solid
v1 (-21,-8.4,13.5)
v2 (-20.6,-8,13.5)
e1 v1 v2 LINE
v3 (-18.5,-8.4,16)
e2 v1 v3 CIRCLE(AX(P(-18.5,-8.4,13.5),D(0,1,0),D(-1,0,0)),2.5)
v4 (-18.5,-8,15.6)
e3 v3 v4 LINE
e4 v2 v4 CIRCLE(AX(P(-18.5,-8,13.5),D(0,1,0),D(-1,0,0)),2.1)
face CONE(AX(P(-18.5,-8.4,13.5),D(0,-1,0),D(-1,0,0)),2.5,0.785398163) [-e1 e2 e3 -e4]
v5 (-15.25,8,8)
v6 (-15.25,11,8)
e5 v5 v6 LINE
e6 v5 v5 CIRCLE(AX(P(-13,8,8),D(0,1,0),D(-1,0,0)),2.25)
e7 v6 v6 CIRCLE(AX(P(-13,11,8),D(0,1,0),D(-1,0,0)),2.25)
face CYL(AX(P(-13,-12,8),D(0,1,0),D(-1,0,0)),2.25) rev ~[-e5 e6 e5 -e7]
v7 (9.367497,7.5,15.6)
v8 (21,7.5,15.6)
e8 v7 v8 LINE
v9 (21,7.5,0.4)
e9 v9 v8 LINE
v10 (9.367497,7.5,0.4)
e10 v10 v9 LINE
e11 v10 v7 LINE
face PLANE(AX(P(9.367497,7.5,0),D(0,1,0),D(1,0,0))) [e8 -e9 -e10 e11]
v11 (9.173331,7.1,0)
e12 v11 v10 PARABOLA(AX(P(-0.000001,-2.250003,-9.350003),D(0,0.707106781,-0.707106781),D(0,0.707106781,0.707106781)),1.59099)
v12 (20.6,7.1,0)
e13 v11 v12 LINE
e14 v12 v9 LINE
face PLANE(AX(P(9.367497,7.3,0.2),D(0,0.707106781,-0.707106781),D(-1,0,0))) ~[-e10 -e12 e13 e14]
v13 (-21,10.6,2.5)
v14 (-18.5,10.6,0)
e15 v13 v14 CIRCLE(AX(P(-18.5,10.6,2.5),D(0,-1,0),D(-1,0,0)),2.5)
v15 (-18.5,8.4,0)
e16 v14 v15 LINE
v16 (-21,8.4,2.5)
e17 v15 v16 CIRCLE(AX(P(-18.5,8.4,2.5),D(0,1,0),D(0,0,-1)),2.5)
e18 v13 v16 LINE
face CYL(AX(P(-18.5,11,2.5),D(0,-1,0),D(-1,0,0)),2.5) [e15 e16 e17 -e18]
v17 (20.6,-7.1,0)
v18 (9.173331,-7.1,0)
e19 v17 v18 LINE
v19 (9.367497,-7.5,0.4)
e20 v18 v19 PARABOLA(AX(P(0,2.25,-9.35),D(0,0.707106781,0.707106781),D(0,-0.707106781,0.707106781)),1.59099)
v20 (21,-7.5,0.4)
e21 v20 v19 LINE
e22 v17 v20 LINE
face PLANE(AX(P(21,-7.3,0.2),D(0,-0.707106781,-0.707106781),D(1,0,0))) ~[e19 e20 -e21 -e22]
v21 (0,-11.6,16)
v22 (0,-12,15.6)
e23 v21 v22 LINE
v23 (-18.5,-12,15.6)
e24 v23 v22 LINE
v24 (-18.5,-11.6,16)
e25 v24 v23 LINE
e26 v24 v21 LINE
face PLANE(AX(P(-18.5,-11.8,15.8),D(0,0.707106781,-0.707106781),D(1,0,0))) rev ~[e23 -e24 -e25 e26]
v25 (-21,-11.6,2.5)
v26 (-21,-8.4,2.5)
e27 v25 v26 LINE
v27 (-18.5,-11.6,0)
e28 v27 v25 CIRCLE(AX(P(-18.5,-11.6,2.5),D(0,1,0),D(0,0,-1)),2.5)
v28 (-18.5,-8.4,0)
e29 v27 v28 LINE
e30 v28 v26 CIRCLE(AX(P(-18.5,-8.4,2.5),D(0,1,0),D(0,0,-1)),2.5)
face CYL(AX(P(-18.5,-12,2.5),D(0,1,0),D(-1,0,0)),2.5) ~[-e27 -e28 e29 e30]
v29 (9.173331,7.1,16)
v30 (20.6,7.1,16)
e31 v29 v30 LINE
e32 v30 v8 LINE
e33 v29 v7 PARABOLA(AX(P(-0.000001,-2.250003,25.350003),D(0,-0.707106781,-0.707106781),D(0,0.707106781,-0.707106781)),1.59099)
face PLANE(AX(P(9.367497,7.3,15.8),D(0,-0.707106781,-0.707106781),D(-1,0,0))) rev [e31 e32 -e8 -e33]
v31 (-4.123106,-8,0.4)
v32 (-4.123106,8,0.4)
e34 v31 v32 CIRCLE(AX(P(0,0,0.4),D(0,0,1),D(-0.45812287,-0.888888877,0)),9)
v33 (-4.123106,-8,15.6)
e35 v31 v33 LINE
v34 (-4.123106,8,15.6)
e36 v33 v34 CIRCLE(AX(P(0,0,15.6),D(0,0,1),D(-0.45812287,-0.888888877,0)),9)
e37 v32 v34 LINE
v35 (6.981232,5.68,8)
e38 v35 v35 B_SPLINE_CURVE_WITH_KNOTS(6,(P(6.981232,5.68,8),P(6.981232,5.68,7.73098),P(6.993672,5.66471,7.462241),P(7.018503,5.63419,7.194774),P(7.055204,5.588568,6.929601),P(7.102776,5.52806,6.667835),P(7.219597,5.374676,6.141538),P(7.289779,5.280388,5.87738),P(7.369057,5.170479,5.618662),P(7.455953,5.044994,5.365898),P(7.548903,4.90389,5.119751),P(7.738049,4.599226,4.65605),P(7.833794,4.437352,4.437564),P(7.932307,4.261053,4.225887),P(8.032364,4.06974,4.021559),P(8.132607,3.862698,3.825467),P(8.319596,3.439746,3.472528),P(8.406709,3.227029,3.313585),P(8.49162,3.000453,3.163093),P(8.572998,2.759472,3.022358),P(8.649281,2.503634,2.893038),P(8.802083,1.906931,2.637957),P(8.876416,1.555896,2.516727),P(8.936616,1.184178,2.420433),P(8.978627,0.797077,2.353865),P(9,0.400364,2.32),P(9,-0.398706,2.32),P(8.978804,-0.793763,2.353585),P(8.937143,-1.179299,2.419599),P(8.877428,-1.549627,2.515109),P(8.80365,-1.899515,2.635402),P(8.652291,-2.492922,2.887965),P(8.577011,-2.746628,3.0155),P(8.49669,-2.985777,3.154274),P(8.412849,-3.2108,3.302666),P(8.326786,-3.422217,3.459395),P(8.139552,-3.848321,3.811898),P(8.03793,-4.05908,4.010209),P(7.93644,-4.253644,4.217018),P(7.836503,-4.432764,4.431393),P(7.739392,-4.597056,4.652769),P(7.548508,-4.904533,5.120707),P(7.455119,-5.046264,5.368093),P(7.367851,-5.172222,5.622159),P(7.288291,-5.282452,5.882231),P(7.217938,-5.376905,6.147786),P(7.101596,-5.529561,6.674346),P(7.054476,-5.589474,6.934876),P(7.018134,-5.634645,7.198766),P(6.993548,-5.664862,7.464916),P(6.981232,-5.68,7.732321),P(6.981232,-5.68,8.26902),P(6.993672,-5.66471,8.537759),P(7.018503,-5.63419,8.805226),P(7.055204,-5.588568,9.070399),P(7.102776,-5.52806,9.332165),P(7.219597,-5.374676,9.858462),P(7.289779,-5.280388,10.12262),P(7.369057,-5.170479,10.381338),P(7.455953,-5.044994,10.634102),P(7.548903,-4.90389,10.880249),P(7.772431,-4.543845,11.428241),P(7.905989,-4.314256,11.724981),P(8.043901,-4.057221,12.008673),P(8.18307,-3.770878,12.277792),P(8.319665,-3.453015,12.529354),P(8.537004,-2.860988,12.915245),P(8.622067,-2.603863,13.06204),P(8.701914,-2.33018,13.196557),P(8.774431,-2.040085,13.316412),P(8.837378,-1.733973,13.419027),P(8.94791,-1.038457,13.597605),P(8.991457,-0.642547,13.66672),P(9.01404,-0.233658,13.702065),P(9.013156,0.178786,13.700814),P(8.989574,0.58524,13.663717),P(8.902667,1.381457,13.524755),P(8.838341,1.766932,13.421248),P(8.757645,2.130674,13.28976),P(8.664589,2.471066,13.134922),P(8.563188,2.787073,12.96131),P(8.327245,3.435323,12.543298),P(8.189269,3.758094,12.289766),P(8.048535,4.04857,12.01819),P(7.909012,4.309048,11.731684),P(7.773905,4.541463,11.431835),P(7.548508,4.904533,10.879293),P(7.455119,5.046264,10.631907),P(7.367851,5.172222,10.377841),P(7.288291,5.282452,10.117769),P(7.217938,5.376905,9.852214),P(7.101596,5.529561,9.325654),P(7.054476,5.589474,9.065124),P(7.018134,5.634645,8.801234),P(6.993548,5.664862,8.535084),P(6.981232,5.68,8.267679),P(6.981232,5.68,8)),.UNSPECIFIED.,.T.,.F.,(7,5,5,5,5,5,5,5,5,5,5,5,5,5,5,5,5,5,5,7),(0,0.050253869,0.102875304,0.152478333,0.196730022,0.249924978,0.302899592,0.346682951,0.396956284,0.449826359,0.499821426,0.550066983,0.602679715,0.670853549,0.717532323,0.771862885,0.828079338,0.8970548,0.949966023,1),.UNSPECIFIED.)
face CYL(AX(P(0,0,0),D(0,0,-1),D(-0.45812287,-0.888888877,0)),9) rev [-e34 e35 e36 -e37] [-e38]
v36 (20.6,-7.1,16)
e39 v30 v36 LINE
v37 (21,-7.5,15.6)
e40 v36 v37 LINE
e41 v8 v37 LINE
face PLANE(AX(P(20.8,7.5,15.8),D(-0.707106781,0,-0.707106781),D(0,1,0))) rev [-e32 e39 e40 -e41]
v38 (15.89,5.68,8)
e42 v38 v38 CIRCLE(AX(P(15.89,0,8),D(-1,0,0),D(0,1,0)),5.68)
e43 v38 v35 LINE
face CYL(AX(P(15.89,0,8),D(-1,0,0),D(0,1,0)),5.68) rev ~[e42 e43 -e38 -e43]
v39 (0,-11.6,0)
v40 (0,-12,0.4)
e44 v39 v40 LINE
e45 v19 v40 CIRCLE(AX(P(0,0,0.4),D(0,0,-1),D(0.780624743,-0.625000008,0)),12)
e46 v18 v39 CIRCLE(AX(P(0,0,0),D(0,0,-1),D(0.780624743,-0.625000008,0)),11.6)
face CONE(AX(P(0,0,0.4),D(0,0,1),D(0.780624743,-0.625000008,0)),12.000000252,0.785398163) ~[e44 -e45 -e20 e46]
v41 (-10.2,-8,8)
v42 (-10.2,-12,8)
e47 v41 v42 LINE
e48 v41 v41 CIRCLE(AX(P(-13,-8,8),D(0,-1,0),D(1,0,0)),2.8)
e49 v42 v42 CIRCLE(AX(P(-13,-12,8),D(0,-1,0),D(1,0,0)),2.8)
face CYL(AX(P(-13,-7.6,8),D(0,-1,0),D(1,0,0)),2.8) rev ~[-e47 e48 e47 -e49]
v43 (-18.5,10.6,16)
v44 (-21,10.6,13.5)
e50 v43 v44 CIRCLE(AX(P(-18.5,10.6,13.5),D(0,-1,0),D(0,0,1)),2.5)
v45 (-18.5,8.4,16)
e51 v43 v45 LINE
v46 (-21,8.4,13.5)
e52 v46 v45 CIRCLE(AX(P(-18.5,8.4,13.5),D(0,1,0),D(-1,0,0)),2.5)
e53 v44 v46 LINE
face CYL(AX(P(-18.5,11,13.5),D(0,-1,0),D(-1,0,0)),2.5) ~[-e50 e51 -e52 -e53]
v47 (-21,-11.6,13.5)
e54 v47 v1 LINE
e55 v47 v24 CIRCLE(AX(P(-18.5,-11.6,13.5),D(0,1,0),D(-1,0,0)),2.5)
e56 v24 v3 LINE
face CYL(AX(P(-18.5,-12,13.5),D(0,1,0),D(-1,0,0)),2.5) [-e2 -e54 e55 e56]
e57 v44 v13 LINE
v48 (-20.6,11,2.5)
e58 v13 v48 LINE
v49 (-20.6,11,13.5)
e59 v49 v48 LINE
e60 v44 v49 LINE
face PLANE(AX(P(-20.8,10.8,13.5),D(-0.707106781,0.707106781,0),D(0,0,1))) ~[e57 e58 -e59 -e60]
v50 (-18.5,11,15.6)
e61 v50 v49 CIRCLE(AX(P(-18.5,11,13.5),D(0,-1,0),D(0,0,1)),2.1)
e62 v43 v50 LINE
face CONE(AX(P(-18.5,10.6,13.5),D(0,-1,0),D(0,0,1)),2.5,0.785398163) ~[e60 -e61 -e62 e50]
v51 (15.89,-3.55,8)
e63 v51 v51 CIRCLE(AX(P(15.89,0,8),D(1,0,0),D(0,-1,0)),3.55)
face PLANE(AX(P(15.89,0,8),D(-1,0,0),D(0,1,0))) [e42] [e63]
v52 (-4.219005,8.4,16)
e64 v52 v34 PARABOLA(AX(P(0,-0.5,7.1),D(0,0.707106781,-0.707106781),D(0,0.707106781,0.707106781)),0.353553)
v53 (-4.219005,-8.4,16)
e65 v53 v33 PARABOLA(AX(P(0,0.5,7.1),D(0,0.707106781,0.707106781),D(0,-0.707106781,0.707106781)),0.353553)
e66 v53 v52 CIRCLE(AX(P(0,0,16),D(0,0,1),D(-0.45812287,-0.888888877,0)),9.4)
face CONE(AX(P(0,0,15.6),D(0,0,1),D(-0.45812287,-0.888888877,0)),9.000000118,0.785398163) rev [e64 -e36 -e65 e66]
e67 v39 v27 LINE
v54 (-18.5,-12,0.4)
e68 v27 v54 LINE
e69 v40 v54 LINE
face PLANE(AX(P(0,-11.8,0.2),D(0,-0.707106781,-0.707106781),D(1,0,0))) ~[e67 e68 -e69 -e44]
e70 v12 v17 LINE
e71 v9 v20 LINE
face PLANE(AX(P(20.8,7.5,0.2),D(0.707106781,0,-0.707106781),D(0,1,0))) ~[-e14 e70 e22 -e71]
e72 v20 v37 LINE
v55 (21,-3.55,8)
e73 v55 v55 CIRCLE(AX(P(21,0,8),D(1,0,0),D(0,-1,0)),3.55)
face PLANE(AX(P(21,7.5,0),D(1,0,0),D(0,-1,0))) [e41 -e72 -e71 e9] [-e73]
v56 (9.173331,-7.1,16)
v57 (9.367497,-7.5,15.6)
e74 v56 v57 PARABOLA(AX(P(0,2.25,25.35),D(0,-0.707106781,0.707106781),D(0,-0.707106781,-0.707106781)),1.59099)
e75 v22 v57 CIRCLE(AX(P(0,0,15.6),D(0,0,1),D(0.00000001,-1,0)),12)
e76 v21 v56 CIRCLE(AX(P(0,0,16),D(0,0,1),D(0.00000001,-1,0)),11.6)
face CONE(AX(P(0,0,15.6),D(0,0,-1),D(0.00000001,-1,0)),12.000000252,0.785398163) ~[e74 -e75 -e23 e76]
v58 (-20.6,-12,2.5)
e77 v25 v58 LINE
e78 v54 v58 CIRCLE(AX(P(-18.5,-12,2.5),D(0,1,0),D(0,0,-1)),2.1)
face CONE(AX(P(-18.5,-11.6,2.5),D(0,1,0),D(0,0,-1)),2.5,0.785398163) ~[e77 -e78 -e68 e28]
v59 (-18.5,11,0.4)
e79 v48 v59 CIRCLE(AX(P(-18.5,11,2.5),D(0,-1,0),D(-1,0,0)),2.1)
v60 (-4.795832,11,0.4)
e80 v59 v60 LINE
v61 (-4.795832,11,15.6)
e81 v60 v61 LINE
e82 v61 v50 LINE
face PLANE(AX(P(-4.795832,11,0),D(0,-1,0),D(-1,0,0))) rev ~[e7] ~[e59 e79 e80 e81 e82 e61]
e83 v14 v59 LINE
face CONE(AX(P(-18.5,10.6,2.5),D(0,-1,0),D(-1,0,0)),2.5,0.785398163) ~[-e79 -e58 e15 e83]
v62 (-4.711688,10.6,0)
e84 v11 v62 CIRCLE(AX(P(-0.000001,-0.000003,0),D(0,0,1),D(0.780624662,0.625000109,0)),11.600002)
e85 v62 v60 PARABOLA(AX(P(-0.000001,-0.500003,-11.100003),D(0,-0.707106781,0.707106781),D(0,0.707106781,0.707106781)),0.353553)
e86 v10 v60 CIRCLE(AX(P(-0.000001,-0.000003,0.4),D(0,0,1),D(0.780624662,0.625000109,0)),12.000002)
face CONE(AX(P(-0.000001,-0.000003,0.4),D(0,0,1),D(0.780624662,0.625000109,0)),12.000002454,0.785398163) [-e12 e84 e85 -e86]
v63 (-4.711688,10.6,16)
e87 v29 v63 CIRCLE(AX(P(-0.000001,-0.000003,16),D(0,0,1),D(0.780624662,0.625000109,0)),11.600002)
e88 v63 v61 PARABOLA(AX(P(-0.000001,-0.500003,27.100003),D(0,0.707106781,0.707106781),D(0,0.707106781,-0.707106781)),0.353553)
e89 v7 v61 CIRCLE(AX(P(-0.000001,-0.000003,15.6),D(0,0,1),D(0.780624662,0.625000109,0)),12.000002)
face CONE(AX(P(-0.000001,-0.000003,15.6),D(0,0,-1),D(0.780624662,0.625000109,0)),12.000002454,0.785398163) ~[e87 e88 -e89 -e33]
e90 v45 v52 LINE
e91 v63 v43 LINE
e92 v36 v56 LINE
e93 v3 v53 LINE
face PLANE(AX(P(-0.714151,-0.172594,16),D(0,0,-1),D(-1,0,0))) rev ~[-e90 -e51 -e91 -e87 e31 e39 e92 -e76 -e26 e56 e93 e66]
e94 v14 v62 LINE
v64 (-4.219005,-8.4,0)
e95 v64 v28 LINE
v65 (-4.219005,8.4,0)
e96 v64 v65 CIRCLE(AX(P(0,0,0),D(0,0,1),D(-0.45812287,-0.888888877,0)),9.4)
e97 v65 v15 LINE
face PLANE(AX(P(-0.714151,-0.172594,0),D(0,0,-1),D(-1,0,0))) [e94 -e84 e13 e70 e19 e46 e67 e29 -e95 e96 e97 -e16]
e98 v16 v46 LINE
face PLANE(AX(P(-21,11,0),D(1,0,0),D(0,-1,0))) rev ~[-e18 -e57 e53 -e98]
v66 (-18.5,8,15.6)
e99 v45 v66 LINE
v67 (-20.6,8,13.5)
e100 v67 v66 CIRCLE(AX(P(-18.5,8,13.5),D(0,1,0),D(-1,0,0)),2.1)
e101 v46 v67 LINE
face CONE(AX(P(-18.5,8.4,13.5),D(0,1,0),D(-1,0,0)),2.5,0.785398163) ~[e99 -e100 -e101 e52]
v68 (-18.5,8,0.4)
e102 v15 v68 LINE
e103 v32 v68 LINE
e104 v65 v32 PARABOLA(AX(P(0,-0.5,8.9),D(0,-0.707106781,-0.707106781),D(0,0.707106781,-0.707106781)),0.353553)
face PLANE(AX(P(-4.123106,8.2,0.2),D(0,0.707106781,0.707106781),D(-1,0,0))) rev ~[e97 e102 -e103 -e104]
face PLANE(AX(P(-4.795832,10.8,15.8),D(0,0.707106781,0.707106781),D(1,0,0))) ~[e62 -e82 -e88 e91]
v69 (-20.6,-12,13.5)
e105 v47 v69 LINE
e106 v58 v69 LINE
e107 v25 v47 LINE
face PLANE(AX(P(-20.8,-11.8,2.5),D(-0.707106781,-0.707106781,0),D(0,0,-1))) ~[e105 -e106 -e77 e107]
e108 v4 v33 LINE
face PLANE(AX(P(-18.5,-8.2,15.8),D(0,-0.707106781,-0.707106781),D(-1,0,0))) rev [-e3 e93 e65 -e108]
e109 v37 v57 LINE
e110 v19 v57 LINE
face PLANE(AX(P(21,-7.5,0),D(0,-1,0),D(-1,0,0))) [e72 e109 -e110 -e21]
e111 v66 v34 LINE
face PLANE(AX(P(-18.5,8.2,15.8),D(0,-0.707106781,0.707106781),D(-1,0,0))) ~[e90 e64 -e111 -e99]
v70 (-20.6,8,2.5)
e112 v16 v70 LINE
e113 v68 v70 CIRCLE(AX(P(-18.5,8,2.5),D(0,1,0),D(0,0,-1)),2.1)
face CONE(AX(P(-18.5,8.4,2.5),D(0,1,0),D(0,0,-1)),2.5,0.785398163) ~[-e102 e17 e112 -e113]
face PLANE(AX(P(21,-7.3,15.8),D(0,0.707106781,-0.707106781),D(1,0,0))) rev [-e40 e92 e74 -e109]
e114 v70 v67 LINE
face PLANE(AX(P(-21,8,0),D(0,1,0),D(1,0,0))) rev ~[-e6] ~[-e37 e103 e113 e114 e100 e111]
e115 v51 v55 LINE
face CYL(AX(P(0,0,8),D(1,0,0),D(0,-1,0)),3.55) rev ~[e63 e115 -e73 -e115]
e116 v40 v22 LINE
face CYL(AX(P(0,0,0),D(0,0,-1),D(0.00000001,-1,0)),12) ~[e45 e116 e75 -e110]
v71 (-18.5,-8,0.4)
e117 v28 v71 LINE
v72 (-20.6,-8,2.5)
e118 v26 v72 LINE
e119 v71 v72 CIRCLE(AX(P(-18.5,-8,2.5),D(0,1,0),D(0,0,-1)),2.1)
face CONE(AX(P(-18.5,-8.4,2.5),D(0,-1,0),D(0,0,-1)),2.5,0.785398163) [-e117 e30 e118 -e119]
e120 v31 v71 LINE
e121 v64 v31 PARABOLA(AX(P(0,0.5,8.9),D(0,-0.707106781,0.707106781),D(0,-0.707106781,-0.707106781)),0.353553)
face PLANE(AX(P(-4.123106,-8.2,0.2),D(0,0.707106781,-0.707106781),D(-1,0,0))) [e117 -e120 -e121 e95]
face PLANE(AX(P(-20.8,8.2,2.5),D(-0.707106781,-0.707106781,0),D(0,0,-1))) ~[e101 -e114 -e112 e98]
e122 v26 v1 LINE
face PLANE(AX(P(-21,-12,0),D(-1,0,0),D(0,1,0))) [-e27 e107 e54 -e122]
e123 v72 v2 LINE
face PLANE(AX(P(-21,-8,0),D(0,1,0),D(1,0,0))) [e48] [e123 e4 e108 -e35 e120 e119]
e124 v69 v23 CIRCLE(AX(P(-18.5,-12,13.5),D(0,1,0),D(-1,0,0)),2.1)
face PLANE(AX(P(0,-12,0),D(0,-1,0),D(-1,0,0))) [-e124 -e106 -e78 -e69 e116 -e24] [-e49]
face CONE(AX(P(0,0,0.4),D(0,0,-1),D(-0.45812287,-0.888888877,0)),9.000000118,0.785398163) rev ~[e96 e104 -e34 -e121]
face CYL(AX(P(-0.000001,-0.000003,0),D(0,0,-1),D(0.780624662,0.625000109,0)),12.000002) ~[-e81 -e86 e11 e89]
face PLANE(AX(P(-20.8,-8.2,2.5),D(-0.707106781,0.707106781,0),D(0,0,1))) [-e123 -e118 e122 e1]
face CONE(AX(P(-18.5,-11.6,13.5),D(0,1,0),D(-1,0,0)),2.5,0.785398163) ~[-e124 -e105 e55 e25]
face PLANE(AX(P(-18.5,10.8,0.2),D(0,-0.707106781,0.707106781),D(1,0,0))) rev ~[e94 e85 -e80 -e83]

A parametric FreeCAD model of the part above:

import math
import FreeCAD as App
import Part
import Sketcher


def edges_at(feature, points):
    """Names of the edges that pass closest to the given points."""
    edges = feature.Shape.Edges
    near = lambda p: min(range(len(edges)), key=lambda i: edges[i].distToShape(Part.Vertex(*p))[0])
    return sorted({f"Edge{near(p) + 1}" for p in points})

doc = App.newDocument("Part")
params = doc.addObject("Spreadsheet::Sheet", "Params")
for row, (alias, value) in enumerate([
    ("sketch1_radius", "9 mm"),
    ("sketch1_radius2", "12 mm"),
    ("sketch1_width", "21 mm"),
    ("sketch1_height", "3 mm"),
    ("sketch1_height2", "4 mm"),
    ("pad1_length", "16 mm"),
    ("fillet_radius", "2.5 mm"),
    ("sketch2_diameter", "4.5 mm"),
    ("hole_diameter", "4.5 mm"),
    ("hole_cbore_diameter", "5.6 mm"),
    ("hole_cbore_depth", "4.4 mm"),
    ("sketch3_diameter", "7.1 mm"),
    ("hole2_diameter", "7.1 mm"),
    ("hole2_cbore_diameter", "11.36 mm"),
    ("hole2_cbore_depth", "15.89 mm"),
    ("chamfer_size", "0.4 mm"),
], start=1):
    params.set(f"A{row}", alias)
    params.set(f"B{row}", "=" + value)
    params.setAlias(f"B{row}", alias)

body = doc.addObject("PartDesign::Body", "Body")

# Sketch on XY plane
sketch1 = body.newObject("Sketcher::SketchObject", "Sketch")
sketch1.AttachmentSupport = (doc.getObject("XY_Plane"), [""])
sketch1.MapMode = "FlatFace"
sketch1.addGeometry([
    Part.LineSegment(App.Vector(21, 7.5, 0), App.Vector(9.367497, 7.5, 0)),  # 0
    Part.ArcOfCircle(Part.Circle(App.Vector(-0.000001, -0.000003, 0), App.Vector(0, 0, 1), 12.000002), math.radians(38.682195), math.radians(113.556457)),  # 1
    Part.LineSegment(App.Vector(-4.795832, 11, 0), App.Vector(-21, 11, 0)),  # 2
    Part.LineSegment(App.Vector(-21, 11, 0), App.Vector(-21, 8, 0)),  # 3
    Part.LineSegment(App.Vector(-21, 8, 0), App.Vector(-4.123106, 8, 0)),  # 4
    Part.ArcOfCircle(Part.Circle(App.Vector(0, 0, 0), App.Vector(0, 0, 1), 9), math.radians(-117.266046), math.radians(117.266046)),  # 5
    Part.LineSegment(App.Vector(-4.123106, -8, 0), App.Vector(-21, -8, 0)),  # 6
    Part.LineSegment(App.Vector(-21, -8, 0), App.Vector(-21, -12, 0)),  # 7
    Part.LineSegment(App.Vector(-21, -12, 0), App.Vector(0, -12, 0)),  # 8
    Part.ArcOfCircle(Part.Circle(App.Vector(0, 0, 0), App.Vector(0, 0, 1), 12), math.radians(-89.999999), math.radians(-38.682188)),  # 9
    Part.LineSegment(App.Vector(9.367497, -7.5, 0), App.Vector(21, -7.5, 0)),  # 10
    Part.LineSegment(App.Vector(21, -7.5, 0), App.Vector(21, 7.5, 0)),  # 11
], False)
sketch1.addConstraint([
    Sketcher.Constraint("Coincident", 0, 2, 1, 1),
    Sketcher.Constraint("Coincident", 1, 2, 2, 1),
    Sketcher.Constraint("Coincident", 2, 2, 3, 1),
    Sketcher.Constraint("Coincident", 3, 2, 4, 1),
    Sketcher.Constraint("Coincident", 4, 2, 5, 2),
    Sketcher.Constraint("Coincident", 5, 1, 6, 1),
    Sketcher.Constraint("Coincident", 6, 2, 7, 1),
    Sketcher.Constraint("Coincident", 7, 2, 8, 1),
    Sketcher.Constraint("Tangent", 8, 2, 9, 1),
    Sketcher.Constraint("Coincident", 9, 2, 10, 1),
    Sketcher.Constraint("Coincident", 10, 2, 11, 1),
    Sketcher.Constraint("Coincident", 11, 2, 0, 1),
    Sketcher.Constraint("Horizontal", 0),
    Sketcher.Constraint("Horizontal", 2),
    Sketcher.Constraint("Vertical", 3),
    Sketcher.Constraint("Horizontal", 4),
    Sketcher.Constraint("Horizontal", 6),
    Sketcher.Constraint("Vertical", 7),
    Sketcher.Constraint("Horizontal", 8),
    Sketcher.Constraint("Horizontal", 10),
    Sketcher.Constraint("Vertical", 11),
    Sketcher.Constraint("Coincident", 1, 3, -1, 1),
    Sketcher.Constraint("Coincident", 5, 3, -1, 1),
    Sketcher.Constraint("Coincident", 9, 3, -1, 1),
    Sketcher.Constraint("Symmetric", 3, 2, 6, 2, -1),
    Sketcher.Constraint("Symmetric", 0, 2, 9, 2, -1),
    Sketcher.Constraint("Radius", 5, 9.0),
    Sketcher.Constraint("Radius", 9, 12.0),
    Sketcher.Constraint("DistanceX", 8, 1, 8, 2, 21.0),
    Sketcher.Constraint("DistanceY", 3, 2, 3, 1, 3.0),
    Sketcher.Constraint("DistanceY", 7, 2, 7, 1, 4.0),
    Sketcher.Constraint("DistanceY", 11, 1, 11, 2, 15.0),
    Sketcher.Constraint("DistanceX", -1, 1, 10, 2, 21.0),
])
sketch1.setExpression("Constraints[26]", "Params.sketch1_radius")
sketch1.setExpression("Constraints[27]", "Params.sketch1_radius2")
sketch1.setExpression("Constraints[28]", "Params.sketch1_width")
sketch1.setExpression("Constraints[29]", "Params.sketch1_height")
sketch1.setExpression("Constraints[30]", "Params.sketch1_height2")
pad1 = body.newObject("PartDesign::Pad", "Pad")
pad1.Profile = sketch1
pad1.setExpression("Length", "Params.pad1_length")
doc.recompute()

fillet = body.newObject("PartDesign::Fillet", "Fillet")
fillet.Base = (pad1, edges_at(pad1, [
    (-21, -10, 16),
    (-21, 9.5, 16),
    (-21, 9.5, 0),
    (-21, -10, 0),
]))
fillet.setExpression("Radius", "Params.fillet_radius")

# Sketch on XZ plane
sketch2 = body.newObject("Sketcher::SketchObject", "Sketch001")
sketch2.AttachmentSupport = (doc.getObject("XZ_Plane"), [""])
sketch2.MapMode = "FlatFace"
sketch2.AttachmentOffset = App.Placement(App.Vector(0, 0, 12), App.Rotation())
sketch2.addGeometry(Part.Circle(App.Vector(-13, 8, 0), App.Vector(0, 0, 1), 2.25), False)
sketch2.addConstraint([
    Sketcher.Constraint("Diameter", 0, 4.5),
    Sketcher.Constraint("DistanceX", 0, 3, -1, 1, 13.0),
    Sketcher.Constraint("DistanceY", -1, 1, 0, 3, 8.0),
])
sketch2.setExpression("Constraints[0]", "Params.sketch2_diameter")
doc.recompute()
hole = body.newObject("PartDesign::Hole", "Hole")
hole.Profile = sketch2
hole.ThreadType = "None"
hole.setExpression("Diameter", "Params.hole_diameter")
hole.DepthType = "ThroughAll"
hole.HoleCutType = "Counterbore"
hole.setExpression("HoleCutDiameter", "Params.hole_cbore_diameter")
hole.setExpression("HoleCutDepth", "Params.hole_cbore_depth")

# Sketch on YZ plane
sketch3 = body.newObject("Sketcher::SketchObject", "Sketch002")
sketch3.AttachmentSupport = (doc.getObject("YZ_Plane"), [""])
sketch3.MapMode = "FlatFace"
sketch3.addGeometry(Part.Circle(App.Vector(0, 8, 0), App.Vector(0, 0, 1), 3.55), False)
sketch3.addConstraint([
    Sketcher.Constraint("PointOnObject", 0, 3, -2),
    Sketcher.Constraint("Diameter", 0, 7.1),
    Sketcher.Constraint("DistanceY", -1, 1, 0, 3, 8.0),
])
sketch3.setExpression("Constraints[1]", "Params.sketch3_diameter")
doc.recompute()
hole2 = body.newObject("PartDesign::Hole", "Hole001")
hole2.Profile = sketch3
hole2.ThreadType = "None"
hole2.setExpression("Diameter", "Params.hole2_diameter")
hole2.DepthType = "ThroughAll"
hole2.HoleCutType = "Counterbore"
hole2.setExpression("HoleCutDiameter", "Params.hole2_cbore_diameter")
hole2.setExpression("HoleCutDepth", "Params.hole2_cbore_depth")
hole2.Reversed = True
doc.recompute()

chamfer = body.newObject("PartDesign::Chamfer", "Chamfer")
chamfer.Base = (hole2, edges_at(hole2, [
    (21, 0, 16),
    (15.184, 7.5, 16),
    (15.184, -7.5, 16),
    (5.196, -10.817, 16),
    (9, 0, 16),
    (2.879, 11.65, 16),
    (-11.648, 11, 16),
    (-11.312, 8, 16),
    (-11.312, -8, 16),
    (-9.25, -12, 16),
    (15.184, 7.5, 0),
    (21, 0, 0),
    (2.879, 11.65, 0),
    (9, 0, 0),
    (-11.648, 11, 0),
    (-11.312, 8, 0),
    (15.184, -7.5, 0),
    (5.196, -10.817, 0),
    (-9.25, -12, 0),
    (-11.312, -8, 0),
]))
chamfer.setExpression("Size", "Params.chamfer_size")

doc.recompute()
